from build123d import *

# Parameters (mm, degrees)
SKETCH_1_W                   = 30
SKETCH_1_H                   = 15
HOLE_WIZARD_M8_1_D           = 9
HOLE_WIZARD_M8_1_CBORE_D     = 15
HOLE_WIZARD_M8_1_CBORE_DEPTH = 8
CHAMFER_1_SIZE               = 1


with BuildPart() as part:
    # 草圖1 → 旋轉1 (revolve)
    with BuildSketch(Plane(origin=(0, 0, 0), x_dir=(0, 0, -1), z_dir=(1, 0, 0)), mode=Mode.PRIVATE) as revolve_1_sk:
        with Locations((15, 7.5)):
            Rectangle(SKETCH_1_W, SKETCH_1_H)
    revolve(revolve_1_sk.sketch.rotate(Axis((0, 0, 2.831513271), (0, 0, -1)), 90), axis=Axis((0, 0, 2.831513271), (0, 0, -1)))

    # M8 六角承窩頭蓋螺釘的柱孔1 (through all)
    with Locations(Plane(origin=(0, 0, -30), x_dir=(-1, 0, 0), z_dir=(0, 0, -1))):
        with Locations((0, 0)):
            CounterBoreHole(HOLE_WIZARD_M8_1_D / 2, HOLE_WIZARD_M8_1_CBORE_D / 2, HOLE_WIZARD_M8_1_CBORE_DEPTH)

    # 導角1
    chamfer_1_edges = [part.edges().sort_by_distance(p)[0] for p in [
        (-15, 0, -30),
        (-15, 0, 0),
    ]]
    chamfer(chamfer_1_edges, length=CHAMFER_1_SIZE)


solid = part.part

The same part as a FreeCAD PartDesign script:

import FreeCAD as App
import Part
import Sketcher


def edges_at(feature, points):
    """Names of the edges that pass closest to the given points."""
    edges = feature.Shape.Edges
    near = lambda p: min(range(len(edges)), key=lambda i: edges[i].distToShape(Part.Vertex(*p))[0])
    return sorted({f"Edge{near(p) + 1}" for p in points})

doc = App.newDocument("Part")
params = doc.addObject("Spreadsheet::Sheet", "Params")
for row, (alias, value) in enumerate([
    ("sketch1_width", "15 mm"),
    ("sketch1_height", "30 mm"),
    ("revolution_angle", "360 deg"),
    ("sketch2_diameter", "9 mm"),
    ("hole_diameter", "9 mm"),
    ("hole_cbore_diameter", "15 mm"),
    ("hole_cbore_depth", "8 mm"),
    ("chamfer_size", "1 mm"),
], start=1):
    params.set(f"A{row}", alias)
    params.set(f"B{row}", "=" + value)
    params.setAlias(f"B{row}", alias)

body = doc.addObject("PartDesign::Body", "Body")

sketch1 = doc.addObject("Sketcher::SketchObject", "Sketch")
body.addObject(sketch1)
sketch1.AttachmentSupport = (doc.YZ_Plane, [""])
sketch1.MapMode = "FlatFace"
sketch1.addGeometry(Part.LineSegment(App.Vector(15, 0, 0), App.Vector(0, 0, 0)), False)
sketch1.addGeometry(Part.LineSegment(App.Vector(0, 0, 0), App.Vector(0, -30, 0)), False)
sketch1.addGeometry(Part.LineSegment(App.Vector(0, -30, 0), App.Vector(15, -30, 0)), False)
sketch1.addGeometry(Part.LineSegment(App.Vector(15, -30, 0), App.Vector(15, 0, 0)), False)
sketch1.addConstraint(Sketcher.Constraint("Coincident", 0, 2, 1, 1))
sketch1.addConstraint(Sketcher.Constraint("Coincident", 1, 2, 2, 1))
sketch1.addConstraint(Sketcher.Constraint("Coincident", 2, 2, 3, 1))
sketch1.addConstraint(Sketcher.Constraint("Coincident", 3, 2, 0, 1))
sketch1.addConstraint(Sketcher.Constraint("Horizontal", 0))
sketch1.addConstraint(Sketcher.Constraint("Vertical", 1))
sketch1.addConstraint(Sketcher.Constraint("Horizontal", 2))
sketch1.addConstraint(Sketcher.Constraint("Vertical", 3))
sketch1.addConstraint(Sketcher.Constraint("Coincident", 0, 2, -1, 1))
sketch1.addConstraint(Sketcher.Constraint("DistanceX", 0, 2, 0, 1, 15.0))
sketch1.addConstraint(Sketcher.Constraint("DistanceY", 1, 2, 1, 1, 30.0))
sketch1.setExpression("Constraints[9]", "Params.sketch1_width")
sketch1.setExpression("Constraints[10]", "Params.sketch1_height")
revolution = doc.addObject("PartDesign::Revolution", "Revolution")
body.addObject(revolution)
revolution.Profile = sketch1
revolution.ReferenceAxis = (sketch1, ["V_Axis"])
revolution.setExpression("Angle", "Params.revolution_angle")

sketch2 = doc.addObject("Sketcher::SketchObject", "Sketch001")
body.addObject(sketch2)
sketch2.AttachmentSupport = (doc.XY_Plane, [""])
sketch2.MapMode = "FlatFace"
sketch2.AttachmentOffset = App.Placement(App.Vector(0, 0, -30), App.Rotation())
sketch2.addGeometry(Part.Circle(App.Vector(0, 0, 0), App.Vector(0, 0, 1), 4.5), False)
sketch2.addConstraint(Sketcher.Constraint("Coincident", 0, 3, -1, 1))
sketch2.addConstraint(Sketcher.Constraint("Diameter", 0, 9.0))
sketch2.setExpression("Constraints[1]", "Params.sketch2_diameter")
doc.recompute()
hole = doc.addObject("PartDesign::Hole", "Hole")
body.addObject(hole)
hole.Profile = sketch2
hole.ThreadType = "None"
hole.setExpression("Diameter", "Params.hole_diameter")
hole.DepthType = "ThroughAll"
hole.HoleCutType = "Counterbore"
hole.setExpression("HoleCutDiameter", "Params.hole_cbore_diameter")
hole.setExpression("HoleCutDepth", "Params.hole_cbore_depth")
hole.Reversed = True
doc.recompute()

chamfer = doc.addObject("PartDesign::Chamfer", "Chamfer")
body.addObject(chamfer)
chamfer.Base = (hole, edges_at(hole, [(-15, 0, -30), (-15, 0, 0)]))
chamfer.setExpression("Size", "Params.chamfer_size")

doc.recompute()
